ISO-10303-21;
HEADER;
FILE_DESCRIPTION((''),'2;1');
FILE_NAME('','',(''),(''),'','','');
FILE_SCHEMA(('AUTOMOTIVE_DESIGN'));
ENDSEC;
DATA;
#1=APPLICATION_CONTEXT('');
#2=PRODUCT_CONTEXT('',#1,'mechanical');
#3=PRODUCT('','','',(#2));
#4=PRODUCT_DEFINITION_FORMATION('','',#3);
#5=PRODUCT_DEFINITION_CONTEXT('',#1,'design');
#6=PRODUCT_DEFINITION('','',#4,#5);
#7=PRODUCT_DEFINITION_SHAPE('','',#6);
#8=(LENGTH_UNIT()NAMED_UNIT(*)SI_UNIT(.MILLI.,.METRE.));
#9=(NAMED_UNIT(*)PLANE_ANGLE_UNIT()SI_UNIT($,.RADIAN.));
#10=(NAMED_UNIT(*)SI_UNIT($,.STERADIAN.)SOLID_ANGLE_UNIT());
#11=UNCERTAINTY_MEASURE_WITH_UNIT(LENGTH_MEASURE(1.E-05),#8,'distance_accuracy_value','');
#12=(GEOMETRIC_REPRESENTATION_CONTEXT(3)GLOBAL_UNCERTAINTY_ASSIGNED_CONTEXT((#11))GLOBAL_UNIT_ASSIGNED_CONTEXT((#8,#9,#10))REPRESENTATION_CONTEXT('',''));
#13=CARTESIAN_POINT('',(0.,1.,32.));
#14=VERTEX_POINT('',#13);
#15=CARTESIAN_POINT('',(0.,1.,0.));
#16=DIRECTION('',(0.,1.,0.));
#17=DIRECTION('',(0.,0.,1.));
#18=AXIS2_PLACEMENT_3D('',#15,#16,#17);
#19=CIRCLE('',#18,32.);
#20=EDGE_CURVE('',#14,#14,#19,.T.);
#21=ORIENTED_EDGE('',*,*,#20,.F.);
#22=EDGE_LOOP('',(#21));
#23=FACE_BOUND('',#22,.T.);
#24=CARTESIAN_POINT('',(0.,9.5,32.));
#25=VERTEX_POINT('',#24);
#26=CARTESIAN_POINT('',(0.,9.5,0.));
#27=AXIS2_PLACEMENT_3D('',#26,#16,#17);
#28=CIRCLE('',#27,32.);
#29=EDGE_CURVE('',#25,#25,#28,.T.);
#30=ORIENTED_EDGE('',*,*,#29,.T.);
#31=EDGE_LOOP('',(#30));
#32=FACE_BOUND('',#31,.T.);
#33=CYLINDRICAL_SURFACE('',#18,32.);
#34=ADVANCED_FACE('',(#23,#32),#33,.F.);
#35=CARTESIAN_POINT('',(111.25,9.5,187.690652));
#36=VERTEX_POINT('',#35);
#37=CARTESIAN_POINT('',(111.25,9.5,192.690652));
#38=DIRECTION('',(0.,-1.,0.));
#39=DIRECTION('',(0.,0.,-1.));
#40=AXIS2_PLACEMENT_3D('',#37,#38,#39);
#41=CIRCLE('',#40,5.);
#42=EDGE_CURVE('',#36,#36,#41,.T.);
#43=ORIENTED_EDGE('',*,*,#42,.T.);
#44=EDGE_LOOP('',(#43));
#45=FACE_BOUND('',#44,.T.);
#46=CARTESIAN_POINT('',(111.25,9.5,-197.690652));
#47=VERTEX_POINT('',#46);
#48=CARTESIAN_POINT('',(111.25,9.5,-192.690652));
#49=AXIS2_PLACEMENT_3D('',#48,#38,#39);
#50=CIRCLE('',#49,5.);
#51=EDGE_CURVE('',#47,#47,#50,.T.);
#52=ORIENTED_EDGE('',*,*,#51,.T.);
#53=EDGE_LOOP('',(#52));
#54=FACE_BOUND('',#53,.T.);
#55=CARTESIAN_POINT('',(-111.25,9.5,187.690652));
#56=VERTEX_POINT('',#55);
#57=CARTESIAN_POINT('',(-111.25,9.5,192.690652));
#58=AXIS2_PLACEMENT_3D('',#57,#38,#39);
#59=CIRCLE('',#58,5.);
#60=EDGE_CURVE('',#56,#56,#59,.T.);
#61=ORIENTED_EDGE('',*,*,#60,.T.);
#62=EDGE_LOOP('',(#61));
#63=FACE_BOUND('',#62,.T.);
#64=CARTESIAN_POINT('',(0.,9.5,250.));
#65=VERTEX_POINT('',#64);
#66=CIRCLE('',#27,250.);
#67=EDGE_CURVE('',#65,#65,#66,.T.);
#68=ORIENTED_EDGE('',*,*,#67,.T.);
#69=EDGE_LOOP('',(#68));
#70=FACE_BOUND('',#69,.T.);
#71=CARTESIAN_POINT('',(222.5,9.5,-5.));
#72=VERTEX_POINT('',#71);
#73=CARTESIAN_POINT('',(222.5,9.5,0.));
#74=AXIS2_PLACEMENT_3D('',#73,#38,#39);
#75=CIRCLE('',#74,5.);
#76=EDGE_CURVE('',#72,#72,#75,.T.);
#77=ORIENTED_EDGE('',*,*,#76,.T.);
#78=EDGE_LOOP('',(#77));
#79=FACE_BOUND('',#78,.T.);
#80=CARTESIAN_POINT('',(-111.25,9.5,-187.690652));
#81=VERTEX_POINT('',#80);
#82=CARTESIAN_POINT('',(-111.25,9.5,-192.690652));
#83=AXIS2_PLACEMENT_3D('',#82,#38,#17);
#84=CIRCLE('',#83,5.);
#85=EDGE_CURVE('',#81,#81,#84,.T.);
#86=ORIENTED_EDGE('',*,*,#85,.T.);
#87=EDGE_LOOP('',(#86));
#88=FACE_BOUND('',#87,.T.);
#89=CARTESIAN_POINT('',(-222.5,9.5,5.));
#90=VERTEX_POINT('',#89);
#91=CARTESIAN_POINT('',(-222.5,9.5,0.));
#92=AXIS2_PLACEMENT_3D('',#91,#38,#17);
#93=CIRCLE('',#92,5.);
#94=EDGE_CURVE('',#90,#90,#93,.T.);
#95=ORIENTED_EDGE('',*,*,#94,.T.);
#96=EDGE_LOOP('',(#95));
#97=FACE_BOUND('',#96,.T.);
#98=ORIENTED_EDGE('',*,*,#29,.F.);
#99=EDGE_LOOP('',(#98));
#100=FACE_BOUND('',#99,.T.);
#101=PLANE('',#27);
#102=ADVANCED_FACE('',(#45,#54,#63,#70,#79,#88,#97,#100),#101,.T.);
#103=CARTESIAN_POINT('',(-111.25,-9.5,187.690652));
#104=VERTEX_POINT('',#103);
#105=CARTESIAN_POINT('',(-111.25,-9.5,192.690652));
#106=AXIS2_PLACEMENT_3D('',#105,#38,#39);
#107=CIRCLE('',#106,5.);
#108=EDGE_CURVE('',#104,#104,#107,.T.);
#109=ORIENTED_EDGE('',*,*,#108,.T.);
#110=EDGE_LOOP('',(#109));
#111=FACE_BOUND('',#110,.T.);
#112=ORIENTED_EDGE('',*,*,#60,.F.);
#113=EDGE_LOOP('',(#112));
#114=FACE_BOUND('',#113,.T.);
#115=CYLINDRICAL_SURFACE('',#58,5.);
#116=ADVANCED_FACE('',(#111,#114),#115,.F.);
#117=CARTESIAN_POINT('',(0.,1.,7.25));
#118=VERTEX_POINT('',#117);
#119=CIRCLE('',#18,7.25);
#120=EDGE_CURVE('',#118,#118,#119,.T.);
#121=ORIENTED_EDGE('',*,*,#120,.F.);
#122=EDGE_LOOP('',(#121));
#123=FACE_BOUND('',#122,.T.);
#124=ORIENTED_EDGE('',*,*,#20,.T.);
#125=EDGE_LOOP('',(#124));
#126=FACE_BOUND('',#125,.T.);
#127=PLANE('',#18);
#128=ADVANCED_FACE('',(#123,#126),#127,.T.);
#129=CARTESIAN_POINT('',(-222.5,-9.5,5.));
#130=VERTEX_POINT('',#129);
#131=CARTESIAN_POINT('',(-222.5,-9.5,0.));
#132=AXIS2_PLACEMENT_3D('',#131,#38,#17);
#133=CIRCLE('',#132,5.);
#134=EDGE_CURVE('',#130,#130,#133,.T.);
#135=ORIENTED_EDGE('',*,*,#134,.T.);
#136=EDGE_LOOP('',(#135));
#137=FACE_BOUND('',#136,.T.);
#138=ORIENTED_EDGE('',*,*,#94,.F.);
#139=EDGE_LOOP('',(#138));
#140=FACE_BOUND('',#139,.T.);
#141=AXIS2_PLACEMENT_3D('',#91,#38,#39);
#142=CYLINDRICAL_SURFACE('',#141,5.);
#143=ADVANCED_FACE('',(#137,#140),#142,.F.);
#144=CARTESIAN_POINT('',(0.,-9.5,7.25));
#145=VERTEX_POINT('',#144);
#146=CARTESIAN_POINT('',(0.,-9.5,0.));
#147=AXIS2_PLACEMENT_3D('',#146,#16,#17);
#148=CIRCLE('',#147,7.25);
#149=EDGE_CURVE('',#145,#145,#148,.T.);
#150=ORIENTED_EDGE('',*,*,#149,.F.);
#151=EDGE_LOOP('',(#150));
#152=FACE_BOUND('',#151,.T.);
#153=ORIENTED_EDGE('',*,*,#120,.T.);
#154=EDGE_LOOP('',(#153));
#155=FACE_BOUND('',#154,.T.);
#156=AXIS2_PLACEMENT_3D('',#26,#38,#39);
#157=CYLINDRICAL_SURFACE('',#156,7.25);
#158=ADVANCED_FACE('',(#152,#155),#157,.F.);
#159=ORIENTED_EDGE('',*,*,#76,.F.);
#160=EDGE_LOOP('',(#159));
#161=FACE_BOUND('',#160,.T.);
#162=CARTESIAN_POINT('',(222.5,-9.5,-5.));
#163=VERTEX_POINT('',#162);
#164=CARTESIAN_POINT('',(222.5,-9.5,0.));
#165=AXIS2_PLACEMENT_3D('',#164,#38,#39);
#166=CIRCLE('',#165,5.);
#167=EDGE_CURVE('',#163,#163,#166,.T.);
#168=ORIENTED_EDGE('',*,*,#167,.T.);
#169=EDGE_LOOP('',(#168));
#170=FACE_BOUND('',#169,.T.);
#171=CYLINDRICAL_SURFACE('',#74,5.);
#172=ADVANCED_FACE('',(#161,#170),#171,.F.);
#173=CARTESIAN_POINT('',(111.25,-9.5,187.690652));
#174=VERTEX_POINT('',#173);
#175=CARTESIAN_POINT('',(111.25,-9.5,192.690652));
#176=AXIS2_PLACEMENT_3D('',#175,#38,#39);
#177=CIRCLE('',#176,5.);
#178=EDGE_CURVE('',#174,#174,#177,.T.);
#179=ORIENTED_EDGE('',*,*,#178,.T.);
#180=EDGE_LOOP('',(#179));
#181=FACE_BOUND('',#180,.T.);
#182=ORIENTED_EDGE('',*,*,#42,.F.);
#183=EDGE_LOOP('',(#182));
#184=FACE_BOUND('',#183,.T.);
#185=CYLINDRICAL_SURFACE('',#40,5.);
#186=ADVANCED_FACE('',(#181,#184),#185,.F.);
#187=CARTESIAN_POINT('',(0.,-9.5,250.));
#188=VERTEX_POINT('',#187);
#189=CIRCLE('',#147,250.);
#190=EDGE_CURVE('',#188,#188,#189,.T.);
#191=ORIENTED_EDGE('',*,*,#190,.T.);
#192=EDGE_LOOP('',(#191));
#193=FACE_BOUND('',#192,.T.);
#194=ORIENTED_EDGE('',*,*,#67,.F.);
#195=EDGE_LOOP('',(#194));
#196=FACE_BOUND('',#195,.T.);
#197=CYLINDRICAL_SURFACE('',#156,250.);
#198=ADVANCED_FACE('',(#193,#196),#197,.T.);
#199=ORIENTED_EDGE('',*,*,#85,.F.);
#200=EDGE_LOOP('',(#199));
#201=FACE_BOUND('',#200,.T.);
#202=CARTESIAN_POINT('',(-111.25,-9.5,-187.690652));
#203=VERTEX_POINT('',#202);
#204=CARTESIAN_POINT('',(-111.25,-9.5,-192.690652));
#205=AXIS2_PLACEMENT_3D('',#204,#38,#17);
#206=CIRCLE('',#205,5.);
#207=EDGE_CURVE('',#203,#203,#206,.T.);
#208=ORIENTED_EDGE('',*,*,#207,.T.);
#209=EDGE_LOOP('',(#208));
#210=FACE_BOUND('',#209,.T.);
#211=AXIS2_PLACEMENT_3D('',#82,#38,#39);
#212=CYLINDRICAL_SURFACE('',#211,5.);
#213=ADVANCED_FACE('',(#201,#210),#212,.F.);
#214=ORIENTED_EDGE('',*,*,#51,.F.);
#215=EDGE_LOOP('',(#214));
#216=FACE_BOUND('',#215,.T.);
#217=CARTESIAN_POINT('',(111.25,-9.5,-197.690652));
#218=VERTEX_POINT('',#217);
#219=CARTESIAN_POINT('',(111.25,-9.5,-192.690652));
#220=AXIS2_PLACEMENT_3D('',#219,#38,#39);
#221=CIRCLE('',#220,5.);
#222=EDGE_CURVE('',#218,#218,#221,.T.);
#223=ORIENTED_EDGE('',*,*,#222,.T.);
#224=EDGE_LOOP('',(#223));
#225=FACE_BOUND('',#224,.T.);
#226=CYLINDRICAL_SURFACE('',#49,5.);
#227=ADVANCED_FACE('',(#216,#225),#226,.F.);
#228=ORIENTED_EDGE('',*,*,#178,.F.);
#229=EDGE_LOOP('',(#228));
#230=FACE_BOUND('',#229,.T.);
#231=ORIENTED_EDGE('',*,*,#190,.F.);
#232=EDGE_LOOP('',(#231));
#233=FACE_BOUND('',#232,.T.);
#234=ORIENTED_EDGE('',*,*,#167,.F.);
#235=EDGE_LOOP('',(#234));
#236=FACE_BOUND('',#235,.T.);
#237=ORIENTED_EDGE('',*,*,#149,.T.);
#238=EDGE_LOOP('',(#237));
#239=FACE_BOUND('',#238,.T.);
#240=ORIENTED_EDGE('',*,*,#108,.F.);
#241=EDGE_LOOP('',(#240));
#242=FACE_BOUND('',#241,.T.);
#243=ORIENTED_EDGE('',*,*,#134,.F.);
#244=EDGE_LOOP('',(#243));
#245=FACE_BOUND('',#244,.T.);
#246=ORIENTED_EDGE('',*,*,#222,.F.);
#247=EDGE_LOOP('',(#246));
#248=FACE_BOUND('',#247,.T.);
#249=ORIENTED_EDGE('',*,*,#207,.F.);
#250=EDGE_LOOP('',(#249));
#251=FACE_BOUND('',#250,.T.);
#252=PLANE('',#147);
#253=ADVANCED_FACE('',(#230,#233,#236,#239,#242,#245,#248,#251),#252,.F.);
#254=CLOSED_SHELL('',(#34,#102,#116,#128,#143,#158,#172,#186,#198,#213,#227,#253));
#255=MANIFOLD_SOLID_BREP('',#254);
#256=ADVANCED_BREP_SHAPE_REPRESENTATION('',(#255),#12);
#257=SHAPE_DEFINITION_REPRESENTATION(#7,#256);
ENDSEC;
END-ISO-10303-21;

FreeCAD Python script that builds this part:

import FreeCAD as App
import Part
import Sketcher

V = App.Vector
Q = App.Units.Quantity

doc = App.newDocument("Part")
body = doc.addObject("PartDesign::Body", "Body")

# Sketch on XZ plane
sketch1 = body.newObject("Sketcher::SketchObject", "Sketch")
sketch1.AttachmentSupport = (doc.getObject("XZ_Plane"), [""])
sketch1.MapMode = "FlatFace"
sketch1.addGeometry(Part.Circle(V(0, 0, 0), V(0, 0, 1), 250), False)
sketch1.addGeometry(Part.Circle(V(0, 0, 0), V(0, 0, 1), 7.25), False)
sketch1.addConstraint(Sketcher.Constraint("Coincident", 0, 3, -1, 1))
sketch1.addConstraint(Sketcher.Constraint("Coincident", 1, 3, -1, 1))
sketch1.addConstraint(Sketcher.Constraint("Diameter", 0, Q("500 mm")))
sketch1.addConstraint(Sketcher.Constraint("Diameter", 1, Q("14.5 mm")))
pad1 = body.newObject("PartDesign::Pad", "Pad")
pad1.Profile = sketch1
pad1.Length = 19
pad1.Midplane = True

# Sketch on XZ plane
sketch2 = body.newObject("Sketcher::SketchObject", "Sketch001")
sketch2.AttachmentSupport = (doc.getObject("XZ_Plane"), [""])
sketch2.MapMode = "FlatFace"
sketch2.AttachmentOffset = App.Placement(V(0, 0, -9.5), App.Rotation())
sketch2.addGeometry(Part.Circle(V(0, 0, 0), V(0, 0, 1), 32), False)
sketch2.addConstraint(Sketcher.Constraint("Coincident", 0, 3, -1, 1))
sketch2.addConstraint(Sketcher.Constraint("Diameter", 0, Q("64 mm")))
pocket1 = body.newObject("PartDesign::Pocket", "Pocket")
pocket1.Profile = sketch2
pocket1.Length = 8.5
pocket1.Reversed = True

# Sketch on XZ plane
sketch3 = body.newObject("Sketcher::SketchObject", "Sketch002")
sketch3.AttachmentSupport = (doc.getObject("XZ_Plane"), [""])
sketch3.MapMode = "FlatFace"
sketch3.AttachmentOffset = App.Placement(V(0, 0, 9.5), App.Rotation())
sketch3.addGeometry(Part.Circle(V(111.25, 192.690652, 0), V(0, 0, 1), 5), False)
sketch3.addGeometry(Part.Circle(V(222.5, 0, 0), V(0, 0, 1), 5), False)
sketch3.addGeometry(Part.Circle(V(-111.25, -192.690652, 0), V(0, 0, 1), 5), False)
sketch3.addGeometry(Part.Circle(V(-222.5, 0, 0), V(0, 0, 1), 5), False)
sketch3.addGeometry(Part.Circle(V(-111.25, 192.690652, 0), V(0, 0, 1), 5), False)
sketch3.addGeometry(Part.Circle(V(111.25, -192.690652, 0), V(0, 0, 1), 5), False)
sketch3.addConstraint(Sketcher.Constraint("Equal", 0, 1))
sketch3.addConstraint(Sketcher.Constraint("Equal", 1, 2))
sketch3.addConstraint(Sketcher.Constraint("Equal", 2, 3))
sketch3.addConstraint(Sketcher.Constraint("Equal", 3, 4))
sketch3.addConstraint(Sketcher.Constraint("Equal", 4, 5))
sketch3.addConstraint(Sketcher.Constraint("Symmetric", 0, 3, 2, 3, -1, 1))
sketch3.addConstraint(Sketcher.Constraint("Symmetric", 1, 3, 3, 3, -1, 1))
sketch3.addConstraint(Sketcher.Constraint("Symmetric", 4, 3, 5, 3, -1, 1))
sketch3.addConstraint(Sketcher.Constraint("Symmetric", 0, 3, 4, 3, -2))
sketch3.addConstraint(Sketcher.Constraint("PointOnObject", 1, 3, -1))
sketch3.addConstraint(Sketcher.Constraint("Diameter", 0, Q("10 mm")))
sketch3.addConstraint(Sketcher.Constraint("DistanceX", 3, 3, 1, 3, Q("445 mm")))
sketch3.addConstraint(Sketcher.Constraint("DistanceX", 2, 3, 0, 3, Q("222.5 mm")))
sketch3.addConstraint(Sketcher.Constraint("DistanceY", -1, 1, 0, 3, Q("192.690652 mm")))
pocket2 = body.newObject("PartDesign::Pocket", "Pocket001")
pocket2.Profile = sketch3
pocket2.Type = "ThroughAll"

doc.recompute()
